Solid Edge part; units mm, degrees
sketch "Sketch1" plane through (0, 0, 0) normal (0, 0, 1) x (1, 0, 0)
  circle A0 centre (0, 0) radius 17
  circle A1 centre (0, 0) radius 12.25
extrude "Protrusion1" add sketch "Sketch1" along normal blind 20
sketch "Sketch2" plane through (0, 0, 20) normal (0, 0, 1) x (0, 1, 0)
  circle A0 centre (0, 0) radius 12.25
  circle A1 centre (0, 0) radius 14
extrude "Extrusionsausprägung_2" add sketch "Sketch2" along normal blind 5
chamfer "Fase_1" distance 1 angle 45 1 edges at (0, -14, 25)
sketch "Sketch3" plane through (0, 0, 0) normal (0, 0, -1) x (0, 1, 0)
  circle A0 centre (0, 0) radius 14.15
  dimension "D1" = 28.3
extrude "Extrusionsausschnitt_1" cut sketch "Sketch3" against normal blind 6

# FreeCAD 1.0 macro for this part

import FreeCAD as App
import Part
import Sketcher

V = App.Vector


def edges_at(feature, points):
    """Names of the edges that pass closest to the given points."""
    edges = feature.Shape.Edges
    near = lambda p: min(range(len(edges)), key=lambda i: edges[i].distToShape(Part.Vertex(*p))[0])
    return sorted({f"Edge{near(p) + 1}" for p in points})

doc = App.newDocument("Part")
params = doc.addObject("Spreadsheet::Sheet", "Params")
for row, (alias, value) in enumerate([
    ("sketch1_diameter", "34 mm"),
    ("sketch1_diameter2", "24.5 mm"),
    ("pad1_length", "20 mm"),
    ("sketch2_diameter", "28 mm"),
    ("sketch2_diameter2", "24.5 mm"),
    ("pad2_length", "5 mm"),
    ("chamfer_size", "1 mm"),
    ("sketch3_diameter", "28.3 mm"),
    ("pocket1_length", "6 mm"),
], start=1):
    params.set(f"A{row}", alias)
    params.set(f"B{row}", "=" + value)
    params.setAlias(f"B{row}", alias)

body = doc.addObject("PartDesign::Body", "Body")

# Sketch on XY plane
sketch1 = doc.addObject("Sketcher::SketchObject", "Sketch")
body.addObject(sketch1)
sketch1.AttachmentSupport = (doc.XY_Plane, [""])
sketch1.MapMode = "FlatFace"
sketch1.addGeometry(Part.Circle(V(0, 0, 0), V(0, 0, 1), 17), False)
sketch1.addGeometry(Part.Circle(V(0, 0, 0), V(0, 0, 1), 12), False)
sketch1.addConstraint(Sketcher.Constraint("Coincident", 0, 3, -1, 1))
sketch1.addConstraint(Sketcher.Constraint("Coincident", 1, 3, -1, 1))
sketch1.addConstraint(Sketcher.Constraint("Diameter", 0, 34.0))
sketch1.addConstraint(Sketcher.Constraint("Diameter", 1, 24.5))
sketch1.setExpression("Constraints[2]", "Params.sketch1_diameter")
sketch1.setExpression("Constraints[3]", "Params.sketch1_diameter2")
pad1 = doc.addObject("PartDesign::Pad", "Pad")
body.addObject(pad1)
pad1.Profile = sketch1
pad1.setExpression("Length", "Params.pad1_length")

# Sketch on XY plane
sketch2 = doc.addObject("Sketcher::SketchObject", "Sketch001")
body.addObject(sketch2)
sketch2.AttachmentSupport = (doc.XY_Plane, [""])
sketch2.MapMode = "FlatFace"
sketch2.AttachmentOffset = App.Placement(V(0, 0, 20), App.Rotation())
sketch2.addGeometry(Part.Circle(V(0, 0, 0), V(0, 0, 1), 14), False)
sketch2.addGeometry(Part.Circle(V(0, 0, 0), V(0, 0, 1), 12), False)
sketch2.addConstraint(Sketcher.Constraint("Coincident", 0, 3, -1, 1))
sketch2.addConstraint(Sketcher.Constraint("Coincident", 1, 3, -1, 1))
sketch2.addConstraint(Sketcher.Constraint("Diameter", 0, 28.0))
sketch2.addConstraint(Sketcher.Constraint("Diameter", 1, 24.5))
sketch2.setExpression("Constraints[2]", "Params.sketch2_diameter")
sketch2.setExpression("Constraints[3]", "Params.sketch2_diameter2")
pad2 = doc.addObject("PartDesign::Pad", "Pad001")
body.addObject(pad2)
pad2.Profile = sketch2
pad2.setExpression("Length", "Params.pad2_length")
doc.recompute()

chamfer = doc.addObject("PartDesign::Chamfer", "Chamfer")
body.addObject(chamfer)
chamfer.Base = (pad2, edges_at(pad2, [(0, -14, 25)]))
chamfer.setExpression("Size", "Params.chamfer_size")

# Sketch on XY plane
sketch3 = doc.addObject("Sketcher::SketchObject", "Sketch002")
body.addObject(sketch3)
sketch3.AttachmentSupport = (doc.XY_Plane, [""])
sketch3.MapMode = "FlatFace"
sketch3.addGeometry(Part.Circle(V(0, 0, 0), V(0, 0, 1), 14), False)
sketch3.addConstraint(Sketcher.Constraint("Coincident", 0, 3, -1, 1))
sketch3.addConstraint(Sketcher.Constraint("Diameter", 0, 28.3))
sketch3.setExpression("Constraints[1]", "Params.sketch3_diameter")
pocket1 = doc.addObject("PartDesign::Pocket", "Pocket")
body.addObject(pocket1)
pocket1.Profile = sketch3
pocket1.setExpression("Length", "Params.pocket1_length")
pocket1.Reversed = True

doc.recompute()
